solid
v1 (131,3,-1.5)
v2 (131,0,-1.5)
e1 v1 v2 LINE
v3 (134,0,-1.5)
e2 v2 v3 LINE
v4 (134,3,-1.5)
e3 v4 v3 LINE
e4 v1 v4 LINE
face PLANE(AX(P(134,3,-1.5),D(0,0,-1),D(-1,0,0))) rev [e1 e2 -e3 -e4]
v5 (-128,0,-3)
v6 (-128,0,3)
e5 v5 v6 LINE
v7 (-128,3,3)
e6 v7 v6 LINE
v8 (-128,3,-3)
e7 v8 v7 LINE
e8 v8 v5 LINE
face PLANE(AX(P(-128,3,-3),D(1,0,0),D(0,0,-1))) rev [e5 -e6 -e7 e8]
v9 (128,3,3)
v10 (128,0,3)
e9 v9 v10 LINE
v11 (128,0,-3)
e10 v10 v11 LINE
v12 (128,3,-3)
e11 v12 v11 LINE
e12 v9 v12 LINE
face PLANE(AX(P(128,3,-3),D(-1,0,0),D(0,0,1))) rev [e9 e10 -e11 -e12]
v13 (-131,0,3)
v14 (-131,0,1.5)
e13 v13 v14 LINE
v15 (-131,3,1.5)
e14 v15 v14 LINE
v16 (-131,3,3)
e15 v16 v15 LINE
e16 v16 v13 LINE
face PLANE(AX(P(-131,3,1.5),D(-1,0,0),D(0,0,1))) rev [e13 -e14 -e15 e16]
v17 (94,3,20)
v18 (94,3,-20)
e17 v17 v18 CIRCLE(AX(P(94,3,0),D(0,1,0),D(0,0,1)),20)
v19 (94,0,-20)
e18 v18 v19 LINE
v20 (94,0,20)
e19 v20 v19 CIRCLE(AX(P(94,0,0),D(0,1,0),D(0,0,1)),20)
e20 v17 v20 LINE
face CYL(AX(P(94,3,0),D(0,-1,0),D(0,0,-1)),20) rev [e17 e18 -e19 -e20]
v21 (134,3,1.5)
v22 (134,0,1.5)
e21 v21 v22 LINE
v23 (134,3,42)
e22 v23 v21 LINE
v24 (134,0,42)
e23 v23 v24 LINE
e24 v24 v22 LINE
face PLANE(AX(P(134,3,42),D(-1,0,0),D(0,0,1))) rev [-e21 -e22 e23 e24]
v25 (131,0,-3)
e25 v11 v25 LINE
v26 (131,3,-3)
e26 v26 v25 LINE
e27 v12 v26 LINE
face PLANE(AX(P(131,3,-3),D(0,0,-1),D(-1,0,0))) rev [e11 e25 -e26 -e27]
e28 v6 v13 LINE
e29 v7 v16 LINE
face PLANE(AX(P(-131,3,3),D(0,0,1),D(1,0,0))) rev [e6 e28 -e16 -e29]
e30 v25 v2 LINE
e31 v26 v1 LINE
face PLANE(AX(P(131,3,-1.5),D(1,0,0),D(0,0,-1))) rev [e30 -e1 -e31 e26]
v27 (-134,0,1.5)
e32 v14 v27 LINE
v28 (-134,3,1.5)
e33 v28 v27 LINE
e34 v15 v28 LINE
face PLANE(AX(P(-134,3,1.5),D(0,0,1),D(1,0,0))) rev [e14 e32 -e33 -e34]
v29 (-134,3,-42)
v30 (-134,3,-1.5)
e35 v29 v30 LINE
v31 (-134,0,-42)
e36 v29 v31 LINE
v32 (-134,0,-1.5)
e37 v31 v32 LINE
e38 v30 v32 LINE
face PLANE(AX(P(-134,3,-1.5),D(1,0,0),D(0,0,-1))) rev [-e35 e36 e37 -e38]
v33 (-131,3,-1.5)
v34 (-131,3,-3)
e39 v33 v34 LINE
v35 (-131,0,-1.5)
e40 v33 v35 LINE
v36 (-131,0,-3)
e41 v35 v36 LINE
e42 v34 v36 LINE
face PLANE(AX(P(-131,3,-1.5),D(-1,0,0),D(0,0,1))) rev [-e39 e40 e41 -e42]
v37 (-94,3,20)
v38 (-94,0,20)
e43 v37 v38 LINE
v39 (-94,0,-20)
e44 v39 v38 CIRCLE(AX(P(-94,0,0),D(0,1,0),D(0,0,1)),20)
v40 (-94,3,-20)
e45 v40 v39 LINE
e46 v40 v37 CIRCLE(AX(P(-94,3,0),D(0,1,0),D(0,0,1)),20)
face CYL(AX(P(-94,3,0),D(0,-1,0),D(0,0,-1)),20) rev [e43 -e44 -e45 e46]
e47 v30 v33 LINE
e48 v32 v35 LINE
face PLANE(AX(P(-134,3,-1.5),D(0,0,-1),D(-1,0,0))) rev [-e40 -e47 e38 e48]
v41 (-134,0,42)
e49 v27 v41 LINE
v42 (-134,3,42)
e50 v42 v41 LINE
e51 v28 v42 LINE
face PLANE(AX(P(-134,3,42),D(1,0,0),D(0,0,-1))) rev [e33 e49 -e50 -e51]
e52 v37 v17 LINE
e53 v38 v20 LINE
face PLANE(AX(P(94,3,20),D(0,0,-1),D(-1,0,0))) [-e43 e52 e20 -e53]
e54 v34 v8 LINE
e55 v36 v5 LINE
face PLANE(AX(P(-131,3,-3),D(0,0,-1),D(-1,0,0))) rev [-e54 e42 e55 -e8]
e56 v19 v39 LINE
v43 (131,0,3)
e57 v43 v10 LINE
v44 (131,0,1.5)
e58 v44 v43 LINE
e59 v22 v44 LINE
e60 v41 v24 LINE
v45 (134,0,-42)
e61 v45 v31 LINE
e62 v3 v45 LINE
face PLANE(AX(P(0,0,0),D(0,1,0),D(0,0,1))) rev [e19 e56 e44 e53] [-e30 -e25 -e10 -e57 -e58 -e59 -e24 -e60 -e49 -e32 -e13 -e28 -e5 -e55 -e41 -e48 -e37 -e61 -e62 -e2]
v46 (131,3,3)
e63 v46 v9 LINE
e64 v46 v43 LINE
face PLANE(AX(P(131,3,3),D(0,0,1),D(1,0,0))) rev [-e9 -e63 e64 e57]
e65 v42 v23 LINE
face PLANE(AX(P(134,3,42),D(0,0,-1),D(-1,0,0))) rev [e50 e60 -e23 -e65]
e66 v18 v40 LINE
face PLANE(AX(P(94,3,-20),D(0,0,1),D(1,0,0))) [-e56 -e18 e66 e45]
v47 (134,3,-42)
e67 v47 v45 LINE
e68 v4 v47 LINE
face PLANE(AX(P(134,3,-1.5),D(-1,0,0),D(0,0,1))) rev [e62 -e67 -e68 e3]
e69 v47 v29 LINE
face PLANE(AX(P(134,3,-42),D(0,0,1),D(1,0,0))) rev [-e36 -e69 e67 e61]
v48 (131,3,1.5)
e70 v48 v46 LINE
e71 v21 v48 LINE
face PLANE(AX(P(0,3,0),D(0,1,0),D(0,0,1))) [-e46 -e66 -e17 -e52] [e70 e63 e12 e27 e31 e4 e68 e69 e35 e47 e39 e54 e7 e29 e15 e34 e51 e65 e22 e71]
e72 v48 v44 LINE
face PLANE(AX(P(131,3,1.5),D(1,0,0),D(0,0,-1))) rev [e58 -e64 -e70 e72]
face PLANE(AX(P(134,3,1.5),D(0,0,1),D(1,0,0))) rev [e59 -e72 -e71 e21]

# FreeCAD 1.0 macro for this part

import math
import FreeCAD as App
import Part
import Sketcher


def add_polygon(sketch, points):
    """Adds a closed chain of lines whose ends are joined by coincident constraints."""
    first, n = sketch.GeometryCount, len(points)
    for a, b in zip(points, points[1:] + points[:1]):
        sketch.addGeometry(Part.LineSegment(App.Vector(*a, 0), App.Vector(*b, 0)), False)
    for i in range(n):
        sketch.addConstraint(Sketcher.Constraint("Coincident", first + i, 2, first + (i + 1) % n, 1))

doc = App.newDocument("Part")
params = doc.addObject("Spreadsheet::Sheet", "Params")
for row, (alias, value) in enumerate([
    ("sketch1_radius", "20 mm"),
    ("sketch1_width", "268 mm"),
    ("sketch1_width2", "3 mm"),
    ("sketch1_width3", "188 mm"),
    ("sketch1_height", "6 mm"),
    ("pad1_length", "3 mm"),
], start=1):
    params.set(f"A{row}", alias)
    params.set(f"B{row}", "=" + value)
    params.setAlias(f"B{row}", alias)

body = doc.addObject("PartDesign::Body", "Body")

# Sketch on XZ plane
sketch1 = body.newObject("Sketcher::SketchObject", "Sketch")
sketch1.AttachmentSupport = (doc.getObject("XZ_Plane"), [""])
sketch1.MapMode = "FlatFace"
add_polygon(sketch1, [(-134, 42), (134, 42), (134, 1.5), (131, 1.5), (131, 3), (128, 3), (128, -3), (131, -3), (131, -1.5), (134, -1.5), (134, -42), (-134, -42), (-134, -1.5), (-131, -1.5), (-131, -3), (-128, -3), (-128, 3), (-131, 3), (-131, 1.5), (-134, 1.5)])  # lines 0-19
sketch1.addGeometry(Part.LineSegment(App.Vector(94, 20, 0), App.Vector(-94, 20, 0)), False)  # 20
sketch1.addGeometry(Part.ArcOfCircle(Part.Circle(App.Vector(-94, 0, 0), App.Vector(0, 0, 1), 20), math.radians(90), math.radians(270)), False)  # 21
sketch1.addGeometry(Part.LineSegment(App.Vector(-94, -20, 0), App.Vector(94, -20, 0)), False)  # 22
sketch1.addGeometry(Part.ArcOfCircle(Part.Circle(App.Vector(94, 0, 0), App.Vector(0, 0, 1), 20), math.radians(-90), math.radians(90)), False)  # 23
sketch1.addConstraint(Sketcher.Constraint("Tangent", 20, 2, 21, 1))
sketch1.addConstraint(Sketcher.Constraint("Tangent", 21, 2, 22, 1))
sketch1.addConstraint(Sketcher.Constraint("Tangent", 22, 2, 23, 1))
sketch1.addConstraint(Sketcher.Constraint("Tangent", 23, 2, 20, 1))
sketch1.addConstraint(Sketcher.Constraint("Horizontal", 0))
sketch1.addConstraint(Sketcher.Constraint("Vertical", 1))
sketch1.addConstraint(Sketcher.Constraint("Horizontal", 2))
sketch1.addConstraint(Sketcher.Constraint("Vertical", 3))
sketch1.addConstraint(Sketcher.Constraint("Horizontal", 4))
sketch1.addConstraint(Sketcher.Constraint("Vertical", 5))
sketch1.addConstraint(Sketcher.Constraint("Horizontal", 6))
sketch1.addConstraint(Sketcher.Constraint("Vertical", 7))
sketch1.addConstraint(Sketcher.Constraint("Horizontal", 8))
sketch1.addConstraint(Sketcher.Constraint("Vertical", 9))
sketch1.addConstraint(Sketcher.Constraint("Horizontal", 10))
sketch1.addConstraint(Sketcher.Constraint("Vertical", 11))
sketch1.addConstraint(Sketcher.Constraint("Horizontal", 12))
sketch1.addConstraint(Sketcher.Constraint("Vertical", 13))
sketch1.addConstraint(Sketcher.Constraint("Horizontal", 14))
sketch1.addConstraint(Sketcher.Constraint("Vertical", 15))
sketch1.addConstraint(Sketcher.Constraint("Horizontal", 16))
sketch1.addConstraint(Sketcher.Constraint("Vertical", 17))
sketch1.addConstraint(Sketcher.Constraint("Horizontal", 18))
sketch1.addConstraint(Sketcher.Constraint("Vertical", 19))
sketch1.addConstraint(Sketcher.Constraint("Horizontal", 20))
sketch1.addConstraint(Sketcher.Constraint("Horizontal", 22))
sketch1.addConstraint(Sketcher.Constraint("Symmetric", 21, 3, 23, 3, -1, 1))
sketch1.addConstraint(Sketcher.Constraint("Symmetric", 0, 2, 10, 2, -1, 1))
sketch1.addConstraint(Sketcher.Constraint("Symmetric", 2, 2, 12, 2, -1, 1))
sketch1.addConstraint(Sketcher.Constraint("Symmetric", 4, 2, 14, 2, -1, 1))
sketch1.addConstraint(Sketcher.Constraint("Symmetric", 6, 2, 16, 2, -1, 1))
sketch1.addConstraint(Sketcher.Constraint("Symmetric", 8, 2, 18, 2, -1, 1))
sketch1.addConstraint(Sketcher.Constraint("Symmetric", 8, 2, 11, 2, -2))
sketch1.addConstraint(Sketcher.Constraint("Symmetric", 6, 2, 13, 2, -2))
sketch1.addConstraint(Sketcher.Constraint("Equal", 2, 4))
sketch1.addConstraint(Sketcher.Constraint("Radius", 21, 20.0))
sketch1.addConstraint(Sketcher.Constraint("DistanceX", 0, 1, 0, 2, 268.0))
sketch1.addConstraint(Sketcher.Constraint("DistanceX", 2, 2, 2, 1, 3.0))
sketch1.addConstraint(Sketcher.Constraint("DistanceX", 20, 2, 20, 1, 188.0))
sketch1.addConstraint(Sketcher.Constraint("DistanceY", 5, 2, 5, 1, 6.0))
sketch1.addConstraint(Sketcher.Constraint("DistanceY", 1, 2, 1, 1, 40.5))
sketch1.addConstraint(Sketcher.Constraint("DistanceY", 3, 1, 3, 2, 1.5))
sketch1.setExpression("Constraints[55]", "Params.sketch1_radius")
sketch1.setExpression("Constraints[56]", "Params.sketch1_width")
sketch1.setExpression("Constraints[57]", "Params.sketch1_width2")
sketch1.setExpression("Constraints[58]", "Params.sketch1_width3")
sketch1.setExpression("Constraints[59]", "Params.sketch1_height")
pad1 = body.newObject("PartDesign::Pad", "Pad")
pad1.Profile = sketch1
pad1.setExpression("Length", "Params.pad1_length")
pad1.Reversed = True

doc.recompute()
